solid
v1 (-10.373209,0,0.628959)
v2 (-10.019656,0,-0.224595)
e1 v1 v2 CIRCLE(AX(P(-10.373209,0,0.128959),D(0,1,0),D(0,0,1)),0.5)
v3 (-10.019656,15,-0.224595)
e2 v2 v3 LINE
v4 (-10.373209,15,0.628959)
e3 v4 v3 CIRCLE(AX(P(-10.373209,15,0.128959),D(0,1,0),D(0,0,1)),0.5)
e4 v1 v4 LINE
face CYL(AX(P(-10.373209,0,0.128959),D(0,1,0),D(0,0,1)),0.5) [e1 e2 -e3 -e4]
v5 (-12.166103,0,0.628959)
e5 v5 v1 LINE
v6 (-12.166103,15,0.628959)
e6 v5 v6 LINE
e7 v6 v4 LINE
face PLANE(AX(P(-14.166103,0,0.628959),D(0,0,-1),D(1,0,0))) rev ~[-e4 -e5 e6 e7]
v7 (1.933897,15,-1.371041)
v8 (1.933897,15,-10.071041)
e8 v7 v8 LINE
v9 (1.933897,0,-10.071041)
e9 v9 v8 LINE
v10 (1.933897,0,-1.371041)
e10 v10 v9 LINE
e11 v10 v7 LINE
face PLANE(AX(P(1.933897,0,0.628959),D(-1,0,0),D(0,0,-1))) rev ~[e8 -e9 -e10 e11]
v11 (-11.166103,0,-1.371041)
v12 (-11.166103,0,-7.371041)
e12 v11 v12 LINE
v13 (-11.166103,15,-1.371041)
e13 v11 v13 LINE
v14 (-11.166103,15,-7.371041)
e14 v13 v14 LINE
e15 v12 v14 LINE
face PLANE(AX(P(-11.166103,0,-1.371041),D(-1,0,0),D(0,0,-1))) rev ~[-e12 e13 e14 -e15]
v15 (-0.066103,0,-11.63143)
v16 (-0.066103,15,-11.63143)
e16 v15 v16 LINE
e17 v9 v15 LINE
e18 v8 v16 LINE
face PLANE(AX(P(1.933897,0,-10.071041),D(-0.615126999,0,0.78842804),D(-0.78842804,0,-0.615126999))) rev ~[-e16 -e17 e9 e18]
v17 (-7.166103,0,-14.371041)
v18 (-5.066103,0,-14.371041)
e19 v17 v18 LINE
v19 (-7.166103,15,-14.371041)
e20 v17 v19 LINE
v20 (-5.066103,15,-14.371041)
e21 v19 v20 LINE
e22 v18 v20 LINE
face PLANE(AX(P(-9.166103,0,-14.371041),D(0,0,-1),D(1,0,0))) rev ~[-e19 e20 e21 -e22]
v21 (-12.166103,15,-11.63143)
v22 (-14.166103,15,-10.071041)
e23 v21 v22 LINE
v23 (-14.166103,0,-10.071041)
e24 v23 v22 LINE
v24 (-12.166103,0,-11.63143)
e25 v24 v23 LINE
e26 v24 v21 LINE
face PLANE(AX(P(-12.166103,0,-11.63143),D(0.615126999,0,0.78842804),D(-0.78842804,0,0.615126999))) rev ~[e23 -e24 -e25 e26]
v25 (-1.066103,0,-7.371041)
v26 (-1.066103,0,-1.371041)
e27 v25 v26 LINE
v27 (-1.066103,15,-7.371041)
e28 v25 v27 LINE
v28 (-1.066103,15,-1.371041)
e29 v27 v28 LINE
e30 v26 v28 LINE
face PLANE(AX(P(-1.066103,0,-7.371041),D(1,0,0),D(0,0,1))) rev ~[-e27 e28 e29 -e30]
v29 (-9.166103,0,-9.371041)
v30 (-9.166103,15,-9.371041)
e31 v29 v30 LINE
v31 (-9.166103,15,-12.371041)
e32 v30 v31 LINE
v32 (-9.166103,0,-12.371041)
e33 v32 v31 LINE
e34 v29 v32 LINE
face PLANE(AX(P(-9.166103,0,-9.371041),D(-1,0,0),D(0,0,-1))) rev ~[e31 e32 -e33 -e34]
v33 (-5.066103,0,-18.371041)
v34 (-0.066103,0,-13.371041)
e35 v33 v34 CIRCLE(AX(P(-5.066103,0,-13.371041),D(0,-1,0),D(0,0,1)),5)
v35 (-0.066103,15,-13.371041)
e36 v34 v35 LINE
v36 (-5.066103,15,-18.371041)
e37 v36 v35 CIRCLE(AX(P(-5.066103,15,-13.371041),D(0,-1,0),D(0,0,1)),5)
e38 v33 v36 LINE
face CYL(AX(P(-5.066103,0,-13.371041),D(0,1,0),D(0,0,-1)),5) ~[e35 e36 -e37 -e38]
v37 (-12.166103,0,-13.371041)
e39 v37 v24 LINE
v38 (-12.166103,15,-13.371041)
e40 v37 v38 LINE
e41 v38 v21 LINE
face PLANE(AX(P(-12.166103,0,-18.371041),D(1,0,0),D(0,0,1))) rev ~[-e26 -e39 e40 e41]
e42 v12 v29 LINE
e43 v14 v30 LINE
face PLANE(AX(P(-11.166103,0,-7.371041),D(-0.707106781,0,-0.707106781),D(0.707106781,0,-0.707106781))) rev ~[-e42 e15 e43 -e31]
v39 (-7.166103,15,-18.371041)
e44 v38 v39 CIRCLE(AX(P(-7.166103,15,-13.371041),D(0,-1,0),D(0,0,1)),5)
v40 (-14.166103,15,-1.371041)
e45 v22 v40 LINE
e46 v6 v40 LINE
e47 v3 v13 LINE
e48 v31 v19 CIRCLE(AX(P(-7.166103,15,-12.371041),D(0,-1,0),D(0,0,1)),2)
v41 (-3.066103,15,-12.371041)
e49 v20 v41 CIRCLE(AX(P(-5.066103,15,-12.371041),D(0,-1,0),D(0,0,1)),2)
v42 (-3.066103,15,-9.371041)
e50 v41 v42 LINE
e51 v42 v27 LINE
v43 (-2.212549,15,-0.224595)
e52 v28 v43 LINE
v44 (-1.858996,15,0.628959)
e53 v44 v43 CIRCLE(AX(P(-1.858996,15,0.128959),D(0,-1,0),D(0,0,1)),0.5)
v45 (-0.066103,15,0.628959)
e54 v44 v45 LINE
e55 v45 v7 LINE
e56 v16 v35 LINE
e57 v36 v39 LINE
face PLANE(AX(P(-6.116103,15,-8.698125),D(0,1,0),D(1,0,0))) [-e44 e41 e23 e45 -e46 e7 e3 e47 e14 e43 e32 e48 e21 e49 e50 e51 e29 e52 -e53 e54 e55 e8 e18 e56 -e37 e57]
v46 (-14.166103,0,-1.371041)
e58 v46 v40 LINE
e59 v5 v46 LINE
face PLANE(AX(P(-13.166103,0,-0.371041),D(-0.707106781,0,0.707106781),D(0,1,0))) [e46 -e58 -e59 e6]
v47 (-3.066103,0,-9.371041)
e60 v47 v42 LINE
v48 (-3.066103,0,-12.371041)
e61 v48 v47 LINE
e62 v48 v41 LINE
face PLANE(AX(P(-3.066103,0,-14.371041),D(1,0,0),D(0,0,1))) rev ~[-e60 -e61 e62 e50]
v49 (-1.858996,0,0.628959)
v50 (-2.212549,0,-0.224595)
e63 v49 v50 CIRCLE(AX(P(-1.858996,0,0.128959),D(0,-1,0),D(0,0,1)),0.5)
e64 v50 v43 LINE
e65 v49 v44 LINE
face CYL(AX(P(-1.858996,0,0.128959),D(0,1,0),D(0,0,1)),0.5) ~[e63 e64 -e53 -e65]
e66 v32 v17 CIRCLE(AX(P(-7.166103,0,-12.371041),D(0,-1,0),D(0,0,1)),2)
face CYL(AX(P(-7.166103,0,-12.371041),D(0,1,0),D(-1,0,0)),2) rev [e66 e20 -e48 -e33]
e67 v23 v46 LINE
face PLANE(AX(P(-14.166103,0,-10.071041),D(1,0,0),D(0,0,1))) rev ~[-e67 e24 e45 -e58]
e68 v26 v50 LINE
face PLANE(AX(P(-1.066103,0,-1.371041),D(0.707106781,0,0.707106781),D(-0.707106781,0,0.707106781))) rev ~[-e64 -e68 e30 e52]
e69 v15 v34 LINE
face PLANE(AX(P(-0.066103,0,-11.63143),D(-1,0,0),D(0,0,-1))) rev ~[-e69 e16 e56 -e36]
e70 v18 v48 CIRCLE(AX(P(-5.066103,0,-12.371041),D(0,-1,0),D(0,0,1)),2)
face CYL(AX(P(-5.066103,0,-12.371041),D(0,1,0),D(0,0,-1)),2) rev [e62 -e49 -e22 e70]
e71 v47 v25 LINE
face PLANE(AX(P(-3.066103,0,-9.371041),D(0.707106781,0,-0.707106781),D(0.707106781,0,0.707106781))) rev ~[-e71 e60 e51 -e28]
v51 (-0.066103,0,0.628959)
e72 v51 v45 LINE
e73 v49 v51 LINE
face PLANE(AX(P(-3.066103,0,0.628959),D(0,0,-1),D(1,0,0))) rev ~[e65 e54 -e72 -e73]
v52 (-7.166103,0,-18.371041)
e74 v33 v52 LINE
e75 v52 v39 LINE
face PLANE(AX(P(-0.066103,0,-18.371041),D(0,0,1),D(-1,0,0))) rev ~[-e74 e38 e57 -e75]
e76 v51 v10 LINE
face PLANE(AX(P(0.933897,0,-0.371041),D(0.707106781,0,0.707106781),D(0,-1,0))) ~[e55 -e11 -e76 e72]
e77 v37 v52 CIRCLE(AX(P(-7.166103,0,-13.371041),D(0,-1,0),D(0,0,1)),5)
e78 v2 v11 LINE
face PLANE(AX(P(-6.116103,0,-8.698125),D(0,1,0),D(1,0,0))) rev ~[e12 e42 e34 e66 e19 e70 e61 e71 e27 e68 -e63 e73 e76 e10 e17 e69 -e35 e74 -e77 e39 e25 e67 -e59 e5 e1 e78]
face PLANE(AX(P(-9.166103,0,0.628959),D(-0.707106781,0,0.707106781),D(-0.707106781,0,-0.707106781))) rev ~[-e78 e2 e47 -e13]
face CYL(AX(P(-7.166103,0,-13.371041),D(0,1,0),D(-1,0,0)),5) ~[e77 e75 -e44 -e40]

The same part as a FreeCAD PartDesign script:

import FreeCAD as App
import Part
import Sketcher
Q = App.Units.Quantity


def edges_at(feature, points):
    """Names of the edges that pass closest to the given points."""
    edges = feature.Shape.Edges
    near = lambda p: min(range(len(edges)), key=lambda i: edges[i].distToShape(Part.Vertex(*p))[0])
    return sorted({f"Edge{near(p) + 1}" for p in points})

doc = App.newDocument("Part")
params = doc.addObject("Spreadsheet::Sheet", "Params")
for row, (alias, value) in enumerate([
    ("sketch1_width", "5 mm"),
    ("sketch1_height", "6 mm"),
    ("sketch1_width2", "6.1 mm"),
    ("sketch1_width3", "12.1 mm"),
    ("sketch1_height2", "10.7 mm"),
    ("pad1_length", "15 mm"),
    ("chamfer_size", "2 mm"),
    ("fillet_radius", "2 mm"),
    ("fillet2_radius", "5 mm"),
    ("fillet3_radius", "0.5 mm"),
], start=1):
    params.set(f"A{row}", alias)
    params.set(f"B{row}", "=" + value)
    params.setAlias(f"B{row}", alias)

body = doc.addObject("PartDesign::Body", "Body")

# Sketch on XZ plane
sketch1 = doc.addObject("Sketcher::SketchObject", "Sketch")
body.addObject(sketch1)
sketch1.AttachmentSupport = (doc.XZ_Plane, [""])
sketch1.MapMode = "FlatFace"
sketch1.addGeometry([
    Part.LineSegment(App.Vector(-14.2, 0.6, 0), App.Vector(-9.2, 0.6, 0)),  # 0
    Part.LineSegment(App.Vector(-9.2, 0.6, 0), App.Vector(-11.2, -1.4, 0)),  # 1
    Part.LineSegment(App.Vector(-11.2, -1.4, 0), App.Vector(-11.2, -7.4, 0)),  # 2
    Part.LineSegment(App.Vector(-11.2, -7.4, 0), App.Vector(-9.2, -9.4, 0)),  # 3
    Part.LineSegment(App.Vector(-9.2, -9.4, 0), App.Vector(-9.2, -14.4, 0)),  # 4
    Part.LineSegment(App.Vector(-9.2, -14.4, 0), App.Vector(-3.1, -14.4, 0)),  # 5
    Part.LineSegment(App.Vector(-3.1, -14.4, 0), App.Vector(-3.1, -9.4, 0)),  # 6
    Part.LineSegment(App.Vector(-3.1, -9.4, 0), App.Vector(-1.1, -7.4, 0)),  # 7
    Part.LineSegment(App.Vector(-1.1, -7.4, 0), App.Vector(-1.1, -1.4, 0)),  # 8
    Part.LineSegment(App.Vector(-1.1, -1.4, 0), App.Vector(-3.1, 0.6, 0)),  # 9
    Part.LineSegment(App.Vector(-3.1, 0.6, 0), App.Vector(1.9, 0.6, 0)),  # 10
    Part.LineSegment(App.Vector(1.9, 0.6, 0), App.Vector(1.9, -10.1, 0)),  # 11
    Part.LineSegment(App.Vector(1.9, -10.1, 0), App.Vector(-0.1, -11.6, 0)),  # 12
    Part.LineSegment(App.Vector(-0.1, -11.6, 0), App.Vector(-0.1, -18.4, 0)),  # 13
    Part.LineSegment(App.Vector(-0.1, -18.4, 0), App.Vector(-12.2, -18.4, 0)),  # 14
    Part.LineSegment(App.Vector(-12.2, -18.4, 0), App.Vector(-12.2, -11.6, 0)),  # 15
    Part.LineSegment(App.Vector(-12.2, -11.6, 0), App.Vector(-14.2, -10.1, 0)),  # 16
    Part.LineSegment(App.Vector(-14.2, -10.1, 0), App.Vector(-14.2, 0.6, 0)),  # 17
], False)
sketch1.addConstraint([
    Sketcher.Constraint("Coincident", 0, 2, 1, 1),
    Sketcher.Constraint("Coincident", 1, 2, 2, 1),
    Sketcher.Constraint("Coincident", 2, 2, 3, 1),
    Sketcher.Constraint("Coincident", 3, 2, 4, 1),
    Sketcher.Constraint("Coincident", 4, 2, 5, 1),
    Sketcher.Constraint("Coincident", 5, 2, 6, 1),
    Sketcher.Constraint("Coincident", 6, 2, 7, 1),
    Sketcher.Constraint("Coincident", 7, 2, 8, 1),
    Sketcher.Constraint("Coincident", 8, 2, 9, 1),
    Sketcher.Constraint("Coincident", 9, 2, 10, 1),
    Sketcher.Constraint("Coincident", 10, 2, 11, 1),
    Sketcher.Constraint("Coincident", 11, 2, 12, 1),
    Sketcher.Constraint("Coincident", 12, 2, 13, 1),
    Sketcher.Constraint("Coincident", 13, 2, 14, 1),
    Sketcher.Constraint("Coincident", 14, 2, 15, 1),
    Sketcher.Constraint("Coincident", 15, 2, 16, 1),
    Sketcher.Constraint("Coincident", 16, 2, 17, 1),
    Sketcher.Constraint("Coincident", 17, 2, 0, 1),
    Sketcher.Constraint("Horizontal", 0),
    Sketcher.Constraint("Vertical", 2),
    Sketcher.Constraint("Vertical", 4),
    Sketcher.Constraint("Horizontal", 5),
    Sketcher.Constraint("Vertical", 6),
    Sketcher.Constraint("Vertical", 8),
    Sketcher.Constraint("Horizontal", 10),
    Sketcher.Constraint("Vertical", 11),
    Sketcher.Constraint("Vertical", 13),
    Sketcher.Constraint("Horizontal", 14),
    Sketcher.Constraint("Vertical", 15),
    Sketcher.Constraint("Vertical", 17),
    Sketcher.Constraint("Perpendicular", 1, 3),
    Sketcher.Constraint("Perpendicular", 3, 7),
    Sketcher.Constraint("Perpendicular", 7, 9),
    Sketcher.Constraint("Horizontal", 3, 2, 6, 2),
    Sketcher.Constraint("Horizontal", 2, 2, 7, 2),
    Sketcher.Constraint("Horizontal", 1, 2, 8, 2),
    Sketcher.Constraint("Horizontal", 0, 2, 9, 2),
    Sketcher.Constraint("Horizontal", 12, 2, 15, 2),
    Sketcher.Constraint("Horizontal", 11, 2, 16, 2),
    Sketcher.Constraint("Vertical", 0, 2, 3, 2),
    Sketcher.Constraint("Vertical", 6, 2, 9, 2),
    Sketcher.Constraint("Equal", 0, 10),
    Sketcher.Constraint("Equal", 10, 4),
    Sketcher.Constraint("Equal", 12, 16),
    Sketcher.Constraint("DistanceX", 0, 1, 0, 2, Q("5 mm")),
    Sketcher.Constraint("DistanceY", 2, 2, 2, 1, Q("6 mm")),
    Sketcher.Constraint("DistanceX", 5, 1, 5, 2, Q("6.1 mm")),
    Sketcher.Constraint("DistanceX", 14, 2, 14, 1, Q("12.1 mm")),
    Sketcher.Constraint("DistanceY", 11, 2, 11, 1, Q("10.7 mm")),
    Sketcher.Constraint("DistanceX", 1, 2, 0, 2, Q("2 mm")),
    Sketcher.Constraint("DistanceY", 13, 2, 5, 2, Q("4 mm")),
    Sketcher.Constraint("DistanceY", 13, 2, 13, 1, Q("6.739612 mm")),
    Sketcher.Constraint("DistanceY", -1, 1, 0, 2, Q("0.628959 mm")),
    Sketcher.Constraint("DistanceX", 0, 2, -1, 1, Q("9.166103 mm")),
])
sketch1.setExpression("Constraints[44]", "Params.sketch1_width")
sketch1.setExpression("Constraints[45]", "Params.sketch1_height")
sketch1.setExpression("Constraints[46]", "Params.sketch1_width2")
sketch1.setExpression("Constraints[47]", "Params.sketch1_width3")
sketch1.setExpression("Constraints[48]", "Params.sketch1_height2")
pad1 = doc.addObject("PartDesign::Pad", "Pad")
body.addObject(pad1)
pad1.Profile = sketch1
pad1.setExpression("Length", "Params.pad1_length")
pad1.Reversed = True
doc.recompute()

chamfer = doc.addObject("PartDesign::Chamfer", "Chamfer")
body.addObject(chamfer)
chamfer.Base = (pad1, edges_at(pad1, [(-14.166, 7.5, 0.629), (1.934, 7.5, 0.629)]))
chamfer.setExpression("Size", "Params.chamfer_size")
doc.recompute()

fillet = doc.addObject("PartDesign::Fillet", "Fillet")
body.addObject(fillet)
fillet.Base = (chamfer, edges_at(chamfer, [(-3.066, 7.5, -14.371), (-9.166, 7.5, -14.371)]))
fillet.setExpression("Radius", "Params.fillet_radius")
doc.recompute()

fillet2 = doc.addObject("PartDesign::Fillet", "Fillet001")
body.addObject(fillet2)
fillet2.Base = (fillet, edges_at(fillet, [(-12.166, 7.5, -18.371), (-0.066, 7.5, -18.371)]))
fillet2.setExpression("Radius", "Params.fillet2_radius")
doc.recompute()

fillet3 = doc.addObject("PartDesign::Fillet", "Fillet002")
body.addObject(fillet3)
fillet3.Base = (fillet2, edges_at(fillet2, [(-9.166, 7.5, 0.629), (-3.066, 7.5, 0.629)]))
fillet3.setExpression("Radius", "Params.fillet3_radius")

doc.recompute()
